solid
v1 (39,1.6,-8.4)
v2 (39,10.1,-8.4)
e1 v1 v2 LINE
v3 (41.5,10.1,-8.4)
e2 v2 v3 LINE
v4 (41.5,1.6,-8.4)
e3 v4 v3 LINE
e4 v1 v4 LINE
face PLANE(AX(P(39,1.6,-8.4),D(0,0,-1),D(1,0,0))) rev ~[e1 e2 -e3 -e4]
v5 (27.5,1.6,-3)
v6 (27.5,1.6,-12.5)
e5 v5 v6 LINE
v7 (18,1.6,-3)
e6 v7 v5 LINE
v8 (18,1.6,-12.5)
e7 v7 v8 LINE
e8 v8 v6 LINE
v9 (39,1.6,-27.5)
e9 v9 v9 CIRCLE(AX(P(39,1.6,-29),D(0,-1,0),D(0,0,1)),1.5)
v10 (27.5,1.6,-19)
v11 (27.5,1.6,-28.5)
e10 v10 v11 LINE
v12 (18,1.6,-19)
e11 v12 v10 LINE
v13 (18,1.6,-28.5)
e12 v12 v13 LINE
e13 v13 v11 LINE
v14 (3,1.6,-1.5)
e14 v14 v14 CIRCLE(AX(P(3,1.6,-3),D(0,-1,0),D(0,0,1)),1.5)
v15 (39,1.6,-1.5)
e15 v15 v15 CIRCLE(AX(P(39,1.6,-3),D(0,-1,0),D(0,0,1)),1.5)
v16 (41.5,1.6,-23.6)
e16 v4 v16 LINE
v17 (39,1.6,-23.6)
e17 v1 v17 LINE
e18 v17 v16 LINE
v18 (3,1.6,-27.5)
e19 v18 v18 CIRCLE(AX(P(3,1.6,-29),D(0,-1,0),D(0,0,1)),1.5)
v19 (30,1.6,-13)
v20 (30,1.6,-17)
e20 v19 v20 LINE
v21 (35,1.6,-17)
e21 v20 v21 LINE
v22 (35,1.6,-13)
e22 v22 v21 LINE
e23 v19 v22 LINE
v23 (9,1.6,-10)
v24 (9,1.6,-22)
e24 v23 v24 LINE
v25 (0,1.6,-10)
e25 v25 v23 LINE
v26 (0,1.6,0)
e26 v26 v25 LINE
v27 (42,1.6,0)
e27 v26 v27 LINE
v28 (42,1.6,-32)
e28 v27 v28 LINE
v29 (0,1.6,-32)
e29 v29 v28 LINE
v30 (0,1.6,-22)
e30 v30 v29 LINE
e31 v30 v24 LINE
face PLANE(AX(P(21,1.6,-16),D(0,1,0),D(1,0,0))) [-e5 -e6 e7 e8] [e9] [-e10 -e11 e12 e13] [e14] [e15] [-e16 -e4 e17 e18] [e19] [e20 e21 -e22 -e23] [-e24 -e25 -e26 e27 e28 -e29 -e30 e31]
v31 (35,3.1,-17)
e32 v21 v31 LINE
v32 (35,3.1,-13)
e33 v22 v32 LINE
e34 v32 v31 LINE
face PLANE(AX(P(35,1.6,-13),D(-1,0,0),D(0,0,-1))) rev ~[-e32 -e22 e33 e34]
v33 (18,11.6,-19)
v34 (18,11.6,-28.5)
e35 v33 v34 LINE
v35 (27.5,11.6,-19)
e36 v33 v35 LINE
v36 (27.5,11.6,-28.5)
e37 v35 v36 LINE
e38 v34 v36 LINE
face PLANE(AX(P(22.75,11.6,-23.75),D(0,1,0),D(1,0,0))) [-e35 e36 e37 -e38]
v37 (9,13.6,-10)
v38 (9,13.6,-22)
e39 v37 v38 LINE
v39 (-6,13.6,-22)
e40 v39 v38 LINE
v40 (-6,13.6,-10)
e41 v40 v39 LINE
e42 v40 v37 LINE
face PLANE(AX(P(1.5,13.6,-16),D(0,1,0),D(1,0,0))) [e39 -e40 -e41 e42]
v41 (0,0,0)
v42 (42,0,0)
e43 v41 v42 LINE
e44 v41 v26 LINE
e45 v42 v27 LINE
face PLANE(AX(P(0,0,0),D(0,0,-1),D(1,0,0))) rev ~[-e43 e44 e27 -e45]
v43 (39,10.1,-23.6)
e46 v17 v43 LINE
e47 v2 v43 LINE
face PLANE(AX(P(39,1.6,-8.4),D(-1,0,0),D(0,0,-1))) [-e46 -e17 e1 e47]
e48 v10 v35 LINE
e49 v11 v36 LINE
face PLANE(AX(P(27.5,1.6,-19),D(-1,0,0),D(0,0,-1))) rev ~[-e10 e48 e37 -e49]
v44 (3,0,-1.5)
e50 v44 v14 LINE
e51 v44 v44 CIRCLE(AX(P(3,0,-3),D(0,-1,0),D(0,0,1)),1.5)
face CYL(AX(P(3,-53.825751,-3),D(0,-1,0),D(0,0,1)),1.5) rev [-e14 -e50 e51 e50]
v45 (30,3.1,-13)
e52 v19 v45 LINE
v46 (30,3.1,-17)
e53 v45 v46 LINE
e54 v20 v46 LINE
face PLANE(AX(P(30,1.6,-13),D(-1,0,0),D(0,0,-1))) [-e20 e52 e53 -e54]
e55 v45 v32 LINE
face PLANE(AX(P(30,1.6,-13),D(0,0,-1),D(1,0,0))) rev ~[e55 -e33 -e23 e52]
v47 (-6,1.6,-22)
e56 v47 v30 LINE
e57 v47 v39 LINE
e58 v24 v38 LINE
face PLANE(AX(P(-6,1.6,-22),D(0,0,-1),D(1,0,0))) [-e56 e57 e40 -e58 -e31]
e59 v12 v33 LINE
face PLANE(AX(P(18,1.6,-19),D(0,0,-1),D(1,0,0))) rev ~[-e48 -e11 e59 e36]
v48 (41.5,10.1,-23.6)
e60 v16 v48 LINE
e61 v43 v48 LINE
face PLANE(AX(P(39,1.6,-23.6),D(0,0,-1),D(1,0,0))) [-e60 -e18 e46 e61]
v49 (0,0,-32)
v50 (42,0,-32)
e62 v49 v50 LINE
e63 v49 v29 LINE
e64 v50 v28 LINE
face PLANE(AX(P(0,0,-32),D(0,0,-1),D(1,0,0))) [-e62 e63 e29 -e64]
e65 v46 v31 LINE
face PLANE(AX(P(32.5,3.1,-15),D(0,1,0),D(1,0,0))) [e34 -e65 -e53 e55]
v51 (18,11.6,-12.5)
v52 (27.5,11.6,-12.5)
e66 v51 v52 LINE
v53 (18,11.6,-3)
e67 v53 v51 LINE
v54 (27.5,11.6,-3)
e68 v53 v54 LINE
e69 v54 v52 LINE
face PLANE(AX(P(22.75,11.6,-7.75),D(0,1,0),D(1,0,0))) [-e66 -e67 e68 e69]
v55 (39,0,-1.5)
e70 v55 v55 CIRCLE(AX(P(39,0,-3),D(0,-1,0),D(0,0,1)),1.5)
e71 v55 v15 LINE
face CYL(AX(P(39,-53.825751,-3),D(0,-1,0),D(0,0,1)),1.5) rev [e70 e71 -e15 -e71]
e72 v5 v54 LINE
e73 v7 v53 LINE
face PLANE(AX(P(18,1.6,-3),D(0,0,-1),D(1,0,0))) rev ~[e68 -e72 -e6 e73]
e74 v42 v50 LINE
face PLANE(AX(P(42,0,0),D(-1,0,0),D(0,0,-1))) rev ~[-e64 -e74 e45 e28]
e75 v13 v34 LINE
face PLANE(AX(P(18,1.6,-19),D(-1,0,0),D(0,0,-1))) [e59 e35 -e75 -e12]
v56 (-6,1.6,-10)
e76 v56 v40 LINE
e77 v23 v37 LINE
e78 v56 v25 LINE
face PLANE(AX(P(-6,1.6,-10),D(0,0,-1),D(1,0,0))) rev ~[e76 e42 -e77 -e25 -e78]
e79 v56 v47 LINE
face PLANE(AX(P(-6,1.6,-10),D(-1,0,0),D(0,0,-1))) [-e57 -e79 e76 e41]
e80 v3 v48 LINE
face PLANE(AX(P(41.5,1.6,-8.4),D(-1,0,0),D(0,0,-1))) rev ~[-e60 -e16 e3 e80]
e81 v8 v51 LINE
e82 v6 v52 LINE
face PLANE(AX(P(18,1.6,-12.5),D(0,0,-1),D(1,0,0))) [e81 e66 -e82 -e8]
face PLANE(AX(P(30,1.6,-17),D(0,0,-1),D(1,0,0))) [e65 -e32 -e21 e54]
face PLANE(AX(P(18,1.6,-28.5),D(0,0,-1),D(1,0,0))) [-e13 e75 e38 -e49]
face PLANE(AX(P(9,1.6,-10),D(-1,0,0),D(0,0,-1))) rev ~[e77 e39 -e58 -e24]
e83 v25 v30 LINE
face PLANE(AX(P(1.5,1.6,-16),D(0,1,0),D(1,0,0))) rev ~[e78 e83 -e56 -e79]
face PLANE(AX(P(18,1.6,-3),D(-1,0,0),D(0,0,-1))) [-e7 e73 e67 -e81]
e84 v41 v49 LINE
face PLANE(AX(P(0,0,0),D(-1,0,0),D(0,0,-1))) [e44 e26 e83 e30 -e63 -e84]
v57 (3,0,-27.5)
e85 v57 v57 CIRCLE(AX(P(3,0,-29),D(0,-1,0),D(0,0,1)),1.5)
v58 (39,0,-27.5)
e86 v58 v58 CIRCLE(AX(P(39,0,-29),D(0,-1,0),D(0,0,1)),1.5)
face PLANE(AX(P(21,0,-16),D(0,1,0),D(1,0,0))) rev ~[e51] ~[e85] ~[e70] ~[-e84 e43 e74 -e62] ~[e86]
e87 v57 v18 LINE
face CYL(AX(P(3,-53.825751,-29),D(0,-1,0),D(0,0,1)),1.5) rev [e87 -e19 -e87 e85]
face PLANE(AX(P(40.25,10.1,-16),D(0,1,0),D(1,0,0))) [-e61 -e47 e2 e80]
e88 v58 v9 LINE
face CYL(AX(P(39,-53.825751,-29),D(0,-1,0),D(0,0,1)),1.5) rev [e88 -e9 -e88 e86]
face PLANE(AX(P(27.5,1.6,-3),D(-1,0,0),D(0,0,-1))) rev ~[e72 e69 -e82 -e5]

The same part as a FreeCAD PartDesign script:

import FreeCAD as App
import Part
import Sketcher
from FreeCAD import Vector
Q = App.Units.Quantity

doc = App.newDocument("Part")
body = doc.addObject("PartDesign::Body", "Body")

# Sketch on XZ plane
sketch1 = doc.addObject("Sketcher::SketchObject", "Sketch")
body.addObject(sketch1)
sketch1.AttachmentSupport = (doc.XZ_Plane, [""])
sketch1.MapMode = "FlatFace"
sketch1.addGeometry(Part.LineSegment(Vector(0, -32, 0), Vector(0, 0, 0)), False)
sketch1.addGeometry(Part.LineSegment(Vector(0, 0, 0), Vector(42, 0, 0)), False)
sketch1.addGeometry(Part.LineSegment(Vector(42, 0, 0), Vector(42, -32, 0)), False)
sketch1.addGeometry(Part.LineSegment(Vector(42, -32, 0), Vector(0, -32, 0)), False)
sketch1.addConstraint(Sketcher.Constraint("Coincident", 0, 2, 1, 1))
sketch1.addConstraint(Sketcher.Constraint("Coincident", 1, 2, 2, 1))
sketch1.addConstraint(Sketcher.Constraint("Coincident", 2, 2, 3, 1))
sketch1.addConstraint(Sketcher.Constraint("Coincident", 3, 2, 0, 1))
sketch1.addConstraint(Sketcher.Constraint("Vertical", 0))
sketch1.addConstraint(Sketcher.Constraint("Horizontal", 1))
sketch1.addConstraint(Sketcher.Constraint("Vertical", 2))
sketch1.addConstraint(Sketcher.Constraint("Horizontal", 3))
sketch1.addConstraint(Sketcher.Constraint("Coincident", 0, 2, -1, 1))
sketch1.addConstraint(Sketcher.Constraint("DistanceX", 1, 1, 1, 2, Q("42 mm")))
sketch1.addConstraint(Sketcher.Constraint("DistanceY", 0, 1, 0, 2, Q("32 mm")))
pad1 = doc.addObject("PartDesign::Pad", "Pad")
body.addObject(pad1)
pad1.Profile = sketch1
pad1.Length = 1.6
pad1.Reversed = True

# Sketch on XZ plane
sketch2 = doc.addObject("Sketcher::SketchObject", "Sketch001")
body.addObject(sketch2)
sketch2.AttachmentSupport = (doc.XZ_Plane, [""])
sketch2.MapMode = "FlatFace"
sketch2.addGeometry(Part.Circle(Vector(3, -3, 0), Vector(0, 0, 1), 1.5), False)
sketch2.addConstraint(Sketcher.Constraint("Diameter", 0, Q("3 mm")))
sketch2.addConstraint(Sketcher.Constraint("DistanceX", -1, 1, 0, 3, Q("3 mm")))
sketch2.addConstraint(Sketcher.Constraint("DistanceY", 0, 3, -1, 1, Q("3 mm")))
pocket1 = doc.addObject("PartDesign::Pocket", "Pocket")
body.addObject(pocket1)
pocket1.Profile = sketch2
pocket1.Type = "ThroughAll"
pocket1.Midplane = True

# Sketch on XZ plane
sketch3 = doc.addObject("Sketcher::SketchObject", "Sketch002")
body.addObject(sketch3)
sketch3.AttachmentSupport = (doc.XZ_Plane, [""])
sketch3.MapMode = "FlatFace"
sketch3.addGeometry(Part.Circle(Vector(39, -3, 0), Vector(0, 0, 1), 1.5), False)
sketch3.addConstraint(Sketcher.Constraint("Diameter", 0, Q("3 mm")))
sketch3.addConstraint(Sketcher.Constraint("DistanceX", -1, 1, 0, 3, Q("39 mm")))
sketch3.addConstraint(Sketcher.Constraint("DistanceY", 0, 3, -1, 1, Q("3 mm")))
pocket2 = doc.addObject("PartDesign::Pocket", "Pocket001")
body.addObject(pocket2)
pocket2.Profile = sketch3
pocket2.Type = "ThroughAll"
pocket2.Midplane = True

# Sketch on XZ plane
sketch4 = doc.addObject("Sketcher::SketchObject", "Sketch003")
body.addObject(sketch4)
sketch4.AttachmentSupport = (doc.XZ_Plane, [""])
sketch4.MapMode = "FlatFace"
sketch4.addGeometry(Part.Circle(Vector(3, -29, 0), Vector(0, 0, 1), 1.5), False)
sketch4.addConstraint(Sketcher.Constraint("Diameter", 0, Q("3 mm")))
sketch4.addConstraint(Sketcher.Constraint("DistanceX", -1, 1, 0, 3, Q("3 mm")))
sketch4.addConstraint(Sketcher.Constraint("DistanceY", 0, 3, -1, 1, Q("29 mm")))
pocket3 = doc.addObject("PartDesign::Pocket", "Pocket002")
body.addObject(pocket3)
pocket3.Profile = sketch4
pocket3.Type = "ThroughAll"
pocket3.Midplane = True

# Sketch on XZ plane
sketch5 = doc.addObject("Sketcher::SketchObject", "Sketch004")
body.addObject(sketch5)
sketch5.AttachmentSupport = (doc.XZ_Plane, [""])
sketch5.MapMode = "FlatFace"
sketch5.addGeometry(Part.Circle(Vector(39, -29, 0), Vector(0, 0, 1), 1.5), False)
sketch5.addConstraint(Sketcher.Constraint("Diameter", 0, Q("3 mm")))
sketch5.addConstraint(Sketcher.Constraint("DistanceX", -1, 1, 0, 3, Q("39 mm")))
sketch5.addConstraint(Sketcher.Constraint("DistanceY", 0, 3, -1, 1, Q("29 mm")))
pocket4 = doc.addObject("PartDesign::Pocket", "Pocket003")
body.addObject(pocket4)
pocket4.Profile = sketch5
pocket4.Type = "ThroughAll"
pocket4.Midplane = True

# Sketch on XZ plane
sketch6 = doc.addObject("Sketcher::SketchObject", "Sketch005")
body.addObject(sketch6)
sketch6.AttachmentSupport = (doc.XZ_Plane, [""])
sketch6.MapMode = "FlatFace"
sketch6.AttachmentOffset = App.Placement(Vector(0, 0, -1.6), App.Rotation())
sketch6.addGeometry(Part.LineSegment(Vector(-6, -22, 0), Vector(-6, -10, 0)), False)
sketch6.addGeometry(Part.LineSegment(Vector(-6, -10, 0), Vector(9, -10, 0)), False)
sketch6.addGeometry(Part.LineSegment(Vector(9, -10, 0), Vector(9, -22, 0)), False)
sketch6.addGeometry(Part.LineSegment(Vector(9, -22, 0), Vector(-6, -22, 0)), False)
sketch6.addConstraint(Sketcher.Constraint("Coincident", 0, 2, 1, 1))
sketch6.addConstraint(Sketcher.Constraint("Coincident", 1, 2, 2, 1))
sketch6.addConstraint(Sketcher.Constraint("Coincident", 2, 2, 3, 1))
sketch6.addConstraint(Sketcher.Constraint("Coincident", 3, 2, 0, 1))
sketch6.addConstraint(Sketcher.Constraint("Vertical", 0))
sketch6.addConstraint(Sketcher.Constraint("Horizontal", 1))
sketch6.addConstraint(Sketcher.Constraint("Vertical", 2))
sketch6.addConstraint(Sketcher.Constraint("Horizontal", 3))
sketch6.addConstraint(Sketcher.Constraint("DistanceX", 1, 1, 1, 2, Q("15 mm")))
sketch6.addConstraint(Sketcher.Constraint("DistanceY", 0, 1, 0, 2, Q("12 mm")))
sketch6.addConstraint(Sketcher.Constraint("DistanceX", 0, 2, -1, 1, Q("6 mm")))
sketch6.addConstraint(Sketcher.Constraint("DistanceY", 0, 2, -1, 1, Q("10 mm")))
pad2 = doc.addObject("PartDesign::Pad", "Pad001")
body.addObject(pad2)
pad2.Profile = sketch6
pad2.Length = 12
pad2.Reversed = True

# Sketch on XZ plane
sketch7 = doc.addObject("Sketcher::SketchObject", "Sketch006")
body.addObject(sketch7)
sketch7.AttachmentSupport = (doc.XZ_Plane, [""])
sketch7.MapMode = "FlatFace"
sketch7.AttachmentOffset = App.Placement(Vector(0, 0, -1.6), App.Rotation())
sketch7.addGeometry(Part.LineSegment(Vector(18, -12.5, 0), Vector(18, -3, 0)), False)
sketch7.addGeometry(Part.LineSegment(Vector(18, -3, 0), Vector(27.5, -3, 0)), False)
sketch7.addGeometry(Part.LineSegment(Vector(27.5, -3, 0), Vector(27.5, -12.5, 0)), False)
sketch7.addGeometry(Part.LineSegment(Vector(27.5, -12.5, 0), Vector(18, -12.5, 0)), False)
sketch7.addConstraint(Sketcher.Constraint("Coincident", 0, 2, 1, 1))
sketch7.addConstraint(Sketcher.Constraint("Coincident", 1, 2, 2, 1))
sketch7.addConstraint(Sketcher.Constraint("Coincident", 2, 2, 3, 1))
sketch7.addConstraint(Sketcher.Constraint("Coincident", 3, 2, 0, 1))
sketch7.addConstraint(Sketcher.Constraint("Vertical", 0))
sketch7.addConstraint(Sketcher.Constraint("Horizontal", 1))
sketch7.addConstraint(Sketcher.Constraint("Vertical", 2))
sketch7.addConstraint(Sketcher.Constraint("Horizontal", 3))
sketch7.addConstraint(Sketcher.Constraint("Equal", 3, 0))
sketch7.addConstraint(Sketcher.Constraint("DistanceX", 1, 1, 1, 2, Q("9.5 mm")))
sketch7.addConstraint(Sketcher.Constraint("DistanceX", -1, 1, 0, 2, Q("18 mm")))
sketch7.addConstraint(Sketcher.Constraint("DistanceY", 0, 2, -1, 1, Q("3 mm")))
pad3 = doc.addObject("PartDesign::Pad", "Pad002")
body.addObject(pad3)
pad3.Profile = sketch7
pad3.Length = 10
pad3.Reversed = True

# Sketch on XZ plane
sketch8 = doc.addObject("Sketcher::SketchObject", "Sketch007")
body.addObject(sketch8)
sketch8.AttachmentSupport = (doc.XZ_Plane, [""])
sketch8.MapMode = "FlatFace"
sketch8.AttachmentOffset = App.Placement(Vector(0, 0, -1.6), App.Rotation())
sketch8.addGeometry(Part.LineSegment(Vector(18, -28.5, 0), Vector(18, -19, 0)), False)
sketch8.addGeometry(Part.LineSegment(Vector(18, -19, 0), Vector(27.5, -19, 0)), False)
sketch8.addGeometry(Part.LineSegment(Vector(27.5, -19, 0), Vector(27.5, -28.5, 0)), False)
sketch8.addGeometry(Part.LineSegment(Vector(27.5, -28.5, 0), Vector(18, -28.5, 0)), False)
sketch8.addConstraint(Sketcher.Constraint("Coincident", 0, 2, 1, 1))
sketch8.addConstraint(Sketcher.Constraint("Coincident", 1, 2, 2, 1))
sketch8.addConstraint(Sketcher.Constraint("Coincident", 2, 2, 3, 1))
sketch8.addConstraint(Sketcher.Constraint("Coincident", 3, 2, 0, 1))
sketch8.addConstraint(Sketcher.Constraint("Vertical", 0))
sketch8.addConstraint(Sketcher.Constraint("Horizontal", 1))
sketch8.addConstraint(Sketcher.Constraint("Vertical", 2))
sketch8.addConstraint(Sketcher.Constraint("Horizontal", 3))
sketch8.addConstraint(Sketcher.Constraint("Equal", 3, 0))
sketch8.addConstraint(Sketcher.Constraint("DistanceX", 1, 1, 1, 2, Q("9.5 mm")))
sketch8.addConstraint(Sketcher.Constraint("DistanceX", -1, 1, 0, 2, Q("18 mm")))
sketch8.addConstraint(Sketcher.Constraint("DistanceY", 0, 2, -1, 1, Q("19 mm")))
pad4 = doc.addObject("PartDesign::Pad", "Pad003")
body.addObject(pad4)
pad4.Profile = sketch8
pad4.Length = 10
pad4.Reversed = True

# Sketch on XZ plane
sketch9 = doc.addObject("Sketcher::SketchObject", "Sketch008")
body.addObject(sketch9)
sketch9.AttachmentSupport = (doc.XZ_Plane, [""])
sketch9.MapMode = "FlatFace"
sketch9.AttachmentOffset = App.Placement(Vector(0, 0, -1.6), App.Rotation())
sketch9.addGeometry(Part.LineSegment(Vector(30, -17, 0), Vector(30, -13, 0)), False)
sketch9.addGeometry(Part.LineSegment(Vector(30, -13, 0), Vector(35, -13, 0)), False)
sketch9.addGeometry(Part.LineSegment(Vector(35, -13, 0), Vector(35, -17, 0)), False)
sketch9.addGeometry(Part.LineSegment(Vector(35, -17, 0), Vector(30, -17, 0)), False)
sketch9.addConstraint(Sketcher.Constraint("Coincident", 0, 2, 1, 1))
sketch9.addConstraint(Sketcher.Constraint("Coincident", 1, 2, 2, 1))
sketch9.addConstraint(Sketcher.Constraint("Coincident", 2, 2, 3, 1))
sketch9.addConstraint(Sketcher.Constraint("Coincident", 3, 2, 0, 1))
sketch9.addConstraint(Sketcher.Constraint("Vertical", 0))
sketch9.addConstraint(Sketcher.Constraint("Horizontal", 1))
sketch9.addConstraint(Sketcher.Constraint("Vertical", 2))
sketch9.addConstraint(Sketcher.Constraint("Horizontal", 3))
sketch9.addConstraint(Sketcher.Constraint("DistanceX", 1, 1, 1, 2, Q("5 mm")))
sketch9.addConstraint(Sketcher.Constraint("DistanceY", 0, 1, 0, 2, Q("4 mm")))
sketch9.addConstraint(Sketcher.Constraint("DistanceX", -1, 1, 0, 2, Q("30 mm")))
sketch9.addConstraint(Sketcher.Constraint("DistanceY", 0, 2, -1, 1, Q("13 mm")))
pad5 = doc.addObject("PartDesign::Pad", "Pad004")
body.addObject(pad5)
pad5.Profile = sketch9
pad5.Length = 1.5
pad5.Reversed = True

# Sketch on XZ plane
sketch10 = doc.addObject("Sketcher::SketchObject", "Sketch009")
body.addObject(sketch10)
sketch10.AttachmentSupport = (doc.XZ_Plane, [""])
sketch10.MapMode = "FlatFace"
sketch10.AttachmentOffset = App.Placement(Vector(0, 0, -1.6), App.Rotation())
sketch10.addGeometry(Part.LineSegment(Vector(39, -23.6, 0), Vector(39, -8.4, 0)), False)
sketch10.addGeometry(Part.LineSegment(Vector(39, -8.4, 0), Vector(41.5, -8.4, 0)), False)
sketch10.addGeometry(Part.LineSegment(Vector(41.5, -8.4, 0), Vector(41.5, -23.6, 0)), False)
sketch10.addGeometry(Part.LineSegment(Vector(41.5, -23.6, 0), Vector(39, -23.6, 0)), False)
sketch10.addConstraint(Sketcher.Constraint("Coincident", 0, 2, 1, 1))
sketch10.addConstraint(Sketcher.Constraint("Coincident", 1, 2, 2, 1))
sketch10.addConstraint(Sketcher.Constraint("Coincident", 2, 2, 3, 1))
sketch10.addConstraint(Sketcher.Constraint("Coincident", 3, 2, 0, 1))
sketch10.addConstraint(Sketcher.Constraint("Vertical", 0))
sketch10.addConstraint(Sketcher.Constraint("Horizontal", 1))
sketch10.addConstraint(Sketcher.Constraint("Vertical", 2))
sketch10.addConstraint(Sketcher.Constraint("Horizontal", 3))
sketch10.addConstraint(Sketcher.Constraint("DistanceX", 1, 1, 1, 2, Q("2.5 mm")))
sketch10.addConstraint(Sketcher.Constraint("DistanceY", 0, 1, 0, 2, Q("15.2 mm")))
sketch10.addConstraint(Sketcher.Constraint("DistanceX", -1, 1, 0, 2, Q("39 mm")))
sketch10.addConstraint(Sketcher.Constraint("DistanceY", 0, 2, -1, 1, Q("8.4 mm")))
pad6 = doc.addObject("PartDesign::Pad", "Pad005")
body.addObject(pad6)
pad6.Profile = sketch10
pad6.Length = 8.5
pad6.Reversed = True

doc.recompute()
